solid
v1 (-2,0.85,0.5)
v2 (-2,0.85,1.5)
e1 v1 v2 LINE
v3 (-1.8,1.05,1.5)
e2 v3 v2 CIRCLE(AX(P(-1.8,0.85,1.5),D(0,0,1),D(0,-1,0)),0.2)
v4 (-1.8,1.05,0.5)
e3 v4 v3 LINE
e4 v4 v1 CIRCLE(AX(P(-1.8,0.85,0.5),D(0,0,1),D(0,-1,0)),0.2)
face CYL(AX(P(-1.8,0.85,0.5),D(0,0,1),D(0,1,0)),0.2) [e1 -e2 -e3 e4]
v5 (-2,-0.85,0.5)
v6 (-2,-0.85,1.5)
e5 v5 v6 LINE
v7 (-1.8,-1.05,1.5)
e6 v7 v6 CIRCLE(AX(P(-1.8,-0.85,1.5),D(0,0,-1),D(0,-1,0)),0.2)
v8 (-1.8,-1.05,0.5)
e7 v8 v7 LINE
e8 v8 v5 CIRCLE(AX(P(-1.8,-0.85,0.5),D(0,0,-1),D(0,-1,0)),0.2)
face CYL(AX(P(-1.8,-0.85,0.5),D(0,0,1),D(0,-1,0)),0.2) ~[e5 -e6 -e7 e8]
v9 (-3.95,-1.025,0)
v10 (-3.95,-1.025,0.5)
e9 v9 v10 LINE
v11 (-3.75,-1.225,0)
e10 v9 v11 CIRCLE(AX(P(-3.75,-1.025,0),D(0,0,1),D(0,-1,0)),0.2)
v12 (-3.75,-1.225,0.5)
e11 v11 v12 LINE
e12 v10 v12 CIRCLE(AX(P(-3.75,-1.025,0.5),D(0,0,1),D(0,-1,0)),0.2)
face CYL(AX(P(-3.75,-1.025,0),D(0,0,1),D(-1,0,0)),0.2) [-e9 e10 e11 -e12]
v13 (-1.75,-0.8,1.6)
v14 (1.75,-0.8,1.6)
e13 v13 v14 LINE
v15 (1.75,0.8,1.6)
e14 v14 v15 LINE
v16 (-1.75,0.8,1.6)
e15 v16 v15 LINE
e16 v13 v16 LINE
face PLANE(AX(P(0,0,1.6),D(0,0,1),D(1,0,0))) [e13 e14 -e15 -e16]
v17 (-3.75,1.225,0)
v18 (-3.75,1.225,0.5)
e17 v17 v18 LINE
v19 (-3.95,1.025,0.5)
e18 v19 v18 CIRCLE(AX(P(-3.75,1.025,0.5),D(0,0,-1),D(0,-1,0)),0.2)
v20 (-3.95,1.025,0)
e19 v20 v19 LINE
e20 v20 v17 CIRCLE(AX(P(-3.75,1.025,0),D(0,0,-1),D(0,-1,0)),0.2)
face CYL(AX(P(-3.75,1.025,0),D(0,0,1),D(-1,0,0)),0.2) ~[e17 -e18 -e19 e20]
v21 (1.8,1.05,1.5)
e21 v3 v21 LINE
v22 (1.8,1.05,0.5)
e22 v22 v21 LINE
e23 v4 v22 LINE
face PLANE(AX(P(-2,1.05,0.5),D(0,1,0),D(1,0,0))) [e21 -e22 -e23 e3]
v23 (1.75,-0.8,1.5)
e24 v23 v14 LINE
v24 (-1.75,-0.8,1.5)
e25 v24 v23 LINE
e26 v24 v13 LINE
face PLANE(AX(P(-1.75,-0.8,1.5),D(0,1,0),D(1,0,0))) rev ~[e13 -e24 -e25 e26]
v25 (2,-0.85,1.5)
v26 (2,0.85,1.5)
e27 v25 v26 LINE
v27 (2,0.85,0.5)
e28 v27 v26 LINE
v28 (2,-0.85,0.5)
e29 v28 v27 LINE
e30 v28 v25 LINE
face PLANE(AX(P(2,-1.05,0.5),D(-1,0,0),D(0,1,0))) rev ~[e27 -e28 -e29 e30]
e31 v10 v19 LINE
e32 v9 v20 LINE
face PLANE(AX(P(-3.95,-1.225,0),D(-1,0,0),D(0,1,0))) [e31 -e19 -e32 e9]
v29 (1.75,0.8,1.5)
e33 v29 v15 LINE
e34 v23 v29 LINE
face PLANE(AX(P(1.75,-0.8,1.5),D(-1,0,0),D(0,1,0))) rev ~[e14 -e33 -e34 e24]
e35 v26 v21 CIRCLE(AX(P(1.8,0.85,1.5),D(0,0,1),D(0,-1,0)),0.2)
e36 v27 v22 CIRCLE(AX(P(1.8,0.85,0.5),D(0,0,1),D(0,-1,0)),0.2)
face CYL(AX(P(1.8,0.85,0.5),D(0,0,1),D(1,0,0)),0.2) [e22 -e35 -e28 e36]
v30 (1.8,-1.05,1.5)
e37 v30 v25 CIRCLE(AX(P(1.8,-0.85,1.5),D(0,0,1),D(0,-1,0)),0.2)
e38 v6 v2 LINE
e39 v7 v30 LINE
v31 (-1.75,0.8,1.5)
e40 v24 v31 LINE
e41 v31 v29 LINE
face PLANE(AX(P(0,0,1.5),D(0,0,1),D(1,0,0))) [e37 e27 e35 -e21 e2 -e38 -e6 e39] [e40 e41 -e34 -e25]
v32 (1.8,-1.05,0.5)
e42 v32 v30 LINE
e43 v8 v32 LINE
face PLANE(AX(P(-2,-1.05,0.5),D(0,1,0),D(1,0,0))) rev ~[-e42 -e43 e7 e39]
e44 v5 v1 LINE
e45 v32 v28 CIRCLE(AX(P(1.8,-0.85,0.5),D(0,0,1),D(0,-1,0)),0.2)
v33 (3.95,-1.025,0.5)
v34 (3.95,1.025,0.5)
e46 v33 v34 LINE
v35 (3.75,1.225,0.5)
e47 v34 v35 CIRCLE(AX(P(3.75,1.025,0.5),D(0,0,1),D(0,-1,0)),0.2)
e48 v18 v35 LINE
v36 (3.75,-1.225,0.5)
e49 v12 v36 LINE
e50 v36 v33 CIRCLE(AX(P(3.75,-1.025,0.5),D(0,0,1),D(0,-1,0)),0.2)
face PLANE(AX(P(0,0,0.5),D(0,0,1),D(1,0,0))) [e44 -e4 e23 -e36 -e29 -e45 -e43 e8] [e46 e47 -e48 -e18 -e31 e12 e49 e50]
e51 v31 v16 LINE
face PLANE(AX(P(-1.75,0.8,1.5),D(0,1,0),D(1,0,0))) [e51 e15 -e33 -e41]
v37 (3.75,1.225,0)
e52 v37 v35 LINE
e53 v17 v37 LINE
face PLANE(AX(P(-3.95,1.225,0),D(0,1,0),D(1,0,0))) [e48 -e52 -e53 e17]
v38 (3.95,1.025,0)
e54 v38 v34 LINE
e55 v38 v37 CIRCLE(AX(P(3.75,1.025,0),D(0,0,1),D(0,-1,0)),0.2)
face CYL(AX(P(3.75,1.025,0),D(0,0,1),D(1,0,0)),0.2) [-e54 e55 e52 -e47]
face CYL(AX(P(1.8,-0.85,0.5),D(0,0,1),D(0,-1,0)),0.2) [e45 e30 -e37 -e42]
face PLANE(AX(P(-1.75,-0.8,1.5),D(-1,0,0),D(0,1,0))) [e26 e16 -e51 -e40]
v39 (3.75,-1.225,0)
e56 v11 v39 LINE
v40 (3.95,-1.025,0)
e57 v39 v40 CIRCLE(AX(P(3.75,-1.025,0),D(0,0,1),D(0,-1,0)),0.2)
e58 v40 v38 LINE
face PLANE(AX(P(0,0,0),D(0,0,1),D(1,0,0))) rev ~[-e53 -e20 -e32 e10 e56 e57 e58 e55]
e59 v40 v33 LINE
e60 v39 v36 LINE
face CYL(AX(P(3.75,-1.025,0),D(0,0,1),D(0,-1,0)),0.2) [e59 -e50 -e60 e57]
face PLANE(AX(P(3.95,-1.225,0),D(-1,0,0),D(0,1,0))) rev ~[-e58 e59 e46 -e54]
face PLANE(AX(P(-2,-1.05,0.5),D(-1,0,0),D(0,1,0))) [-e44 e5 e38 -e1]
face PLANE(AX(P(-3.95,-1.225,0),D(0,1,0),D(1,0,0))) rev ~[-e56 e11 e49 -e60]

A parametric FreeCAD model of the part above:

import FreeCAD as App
import Part
import Sketcher

V = App.Vector
Q = App.Units.Quantity


def edges_at(feature, points):
    """Names of the edges that pass closest to the given points."""
    edges = feature.Shape.Edges
    near = lambda p: min(range(len(edges)), key=lambda i: edges[i].distToShape(Part.Vertex(*p))[0])
    return sorted({f"Edge{near(p) + 1}" for p in points})

doc = App.newDocument("Part")
body = doc.addObject("PartDesign::Body", "Body")

sketch1 = body.newObject("Sketcher::SketchObject", "Sketch")
sketch1.AttachmentSupport = (doc.getObject("XY_Plane"), [""])
sketch1.MapMode = "FlatFace"
sketch1.addGeometry(Part.LineSegment(V(-4, 1.2, 0), V(-4, -1.2, 0)), False)
sketch1.addGeometry(Part.LineSegment(V(-4, -1.2, 0), V(4, -1.2, 0)), False)
sketch1.addGeometry(Part.LineSegment(V(4, -1.2, 0), V(4, 1.2, 0)), False)
sketch1.addGeometry(Part.LineSegment(V(4, 1.2, 0), V(-4, 1.2, 0)), False)
sketch1.addConstraint(Sketcher.Constraint("Coincident", 0, 2, 1, 1))
sketch1.addConstraint(Sketcher.Constraint("Coincident", 1, 2, 2, 1))
sketch1.addConstraint(Sketcher.Constraint("Coincident", 2, 2, 3, 1))
sketch1.addConstraint(Sketcher.Constraint("Coincident", 3, 2, 0, 1))
sketch1.addConstraint(Sketcher.Constraint("Vertical", 0))
sketch1.addConstraint(Sketcher.Constraint("Horizontal", 1))
sketch1.addConstraint(Sketcher.Constraint("Vertical", 2))
sketch1.addConstraint(Sketcher.Constraint("Horizontal", 3))
sketch1.addConstraint(Sketcher.Constraint("Symmetric", 0, 2, 2, 2, -1, 1))
sketch1.addConstraint(Sketcher.Constraint("DistanceX", 1, 1, 1, 2, Q("7.9 mm")))
sketch1.addConstraint(Sketcher.Constraint("DistanceY", 0, 2, 0, 1, Q("2.45 mm")))
pad1 = body.newObject("PartDesign::Pad", "Pad")
pad1.Profile = sketch1
pad1.Length = 0.5
doc.recompute()

fillet = body.newObject("PartDesign::Fillet", "Fillet")
fillet.Base = (pad1, edges_at(pad1, [
    (-3.95, -1.225, 0.25),
    (3.95, -1.225, 0.25),
    (3.95, 1.225, 0.25),
    (-3.95, 1.225, 0.25),
]))
fillet.Radius = 0.2

sketch2 = body.newObject("Sketcher::SketchObject", "Sketch001")
sketch2.AttachmentSupport = (doc.getObject("XY_Plane"), [""])
sketch2.MapMode = "FlatFace"
sketch2.AttachmentOffset = App.Placement(V(0, 0, 0.5), App.Rotation())
sketch2.addGeometry(Part.LineSegment(V(-2, 1.1, 0), V(-2, -1.1, 0)), False)
sketch2.addGeometry(Part.LineSegment(V(-2, -1.1, 0), V(2, -1.1, 0)), False)
sketch2.addGeometry(Part.LineSegment(V(2, -1.1, 0), V(2, 1.1, 0)), False)
sketch2.addGeometry(Part.LineSegment(V(2, 1.1, 0), V(-2, 1.1, 0)), False)
sketch2.addConstraint(Sketcher.Constraint("Coincident", 0, 2, 1, 1))
sketch2.addConstraint(Sketcher.Constraint("Coincident", 1, 2, 2, 1))
sketch2.addConstraint(Sketcher.Constraint("Coincident", 2, 2, 3, 1))
sketch2.addConstraint(Sketcher.Constraint("Coincident", 3, 2, 0, 1))
sketch2.addConstraint(Sketcher.Constraint("Vertical", 0))
sketch2.addConstraint(Sketcher.Constraint("Horizontal", 1))
sketch2.addConstraint(Sketcher.Constraint("Vertical", 2))
sketch2.addConstraint(Sketcher.Constraint("Horizontal", 3))
sketch2.addConstraint(Sketcher.Constraint("Symmetric", 0, 2, 2, 2, -1, 1))
sketch2.addConstraint(Sketcher.Constraint("DistanceX", 1, 1, 1, 2, Q("4 mm")))
sketch2.addConstraint(Sketcher.Constraint("DistanceY", 0, 2, 0, 1, Q("2.1 mm")))
pad2 = body.newObject("PartDesign::Pad", "Pad001")
pad2.Profile = sketch2
pad2.Length = 1
doc.recompute()

fillet2 = body.newObject("PartDesign::Fillet", "Fillet001")
fillet2.Base = (pad2, edges_at(pad2, [
    (-2, -1.05, 1),
    (2, -1.05, 1),
    (2, 1.05, 1),
    (-2, 1.05, 1),
]))
fillet2.Radius = 0.2

sketch3 = body.newObject("Sketcher::SketchObject", "Sketch002")
sketch3.AttachmentSupport = (doc.getObject("XY_Plane"), [""])
sketch3.MapMode = "FlatFace"
sketch3.AttachmentOffset = App.Placement(V(0, 0, 1.5), App.Rotation())
sketch3.addGeometry(Part.LineSegment(V(-1.8, 0.8, 0), V(-1.8, -0.8, 0)), False)
sketch3.addGeometry(Part.LineSegment(V(-1.8, -0.8, 0), V(1.8, -0.8, 0)), False)
sketch3.addGeometry(Part.LineSegment(V(1.8, -0.8, 0), V(1.8, 0.8, 0)), False)
sketch3.addGeometry(Part.LineSegment(V(1.8, 0.8, 0), V(-1.8, 0.8, 0)), False)
sketch3.addConstraint(Sketcher.Constraint("Coincident", 0, 2, 1, 1))
sketch3.addConstraint(Sketcher.Constraint("Coincident", 1, 2, 2, 1))
sketch3.addConstraint(Sketcher.Constraint("Coincident", 2, 2, 3, 1))
sketch3.addConstraint(Sketcher.Constraint("Coincident", 3, 2, 0, 1))
sketch3.addConstraint(Sketcher.Constraint("Vertical", 0))
sketch3.addConstraint(Sketcher.Constraint("Horizontal", 1))
sketch3.addConstraint(Sketcher.Constraint("Vertical", 2))
sketch3.addConstraint(Sketcher.Constraint("Horizontal", 3))
sketch3.addConstraint(Sketcher.Constraint("Symmetric", 0, 2, 2, 2, -1, 1))
sketch3.addConstraint(Sketcher.Constraint("DistanceX", 1, 1, 1, 2, Q("3.5 mm")))
sketch3.addConstraint(Sketcher.Constraint("DistanceY", 0, 2, 0, 1, Q("1.6 mm")))
pad3 = body.newObject("PartDesign::Pad", "Pad002")
pad3.Profile = sketch3
pad3.Length = 0.1

doc.recompute()
